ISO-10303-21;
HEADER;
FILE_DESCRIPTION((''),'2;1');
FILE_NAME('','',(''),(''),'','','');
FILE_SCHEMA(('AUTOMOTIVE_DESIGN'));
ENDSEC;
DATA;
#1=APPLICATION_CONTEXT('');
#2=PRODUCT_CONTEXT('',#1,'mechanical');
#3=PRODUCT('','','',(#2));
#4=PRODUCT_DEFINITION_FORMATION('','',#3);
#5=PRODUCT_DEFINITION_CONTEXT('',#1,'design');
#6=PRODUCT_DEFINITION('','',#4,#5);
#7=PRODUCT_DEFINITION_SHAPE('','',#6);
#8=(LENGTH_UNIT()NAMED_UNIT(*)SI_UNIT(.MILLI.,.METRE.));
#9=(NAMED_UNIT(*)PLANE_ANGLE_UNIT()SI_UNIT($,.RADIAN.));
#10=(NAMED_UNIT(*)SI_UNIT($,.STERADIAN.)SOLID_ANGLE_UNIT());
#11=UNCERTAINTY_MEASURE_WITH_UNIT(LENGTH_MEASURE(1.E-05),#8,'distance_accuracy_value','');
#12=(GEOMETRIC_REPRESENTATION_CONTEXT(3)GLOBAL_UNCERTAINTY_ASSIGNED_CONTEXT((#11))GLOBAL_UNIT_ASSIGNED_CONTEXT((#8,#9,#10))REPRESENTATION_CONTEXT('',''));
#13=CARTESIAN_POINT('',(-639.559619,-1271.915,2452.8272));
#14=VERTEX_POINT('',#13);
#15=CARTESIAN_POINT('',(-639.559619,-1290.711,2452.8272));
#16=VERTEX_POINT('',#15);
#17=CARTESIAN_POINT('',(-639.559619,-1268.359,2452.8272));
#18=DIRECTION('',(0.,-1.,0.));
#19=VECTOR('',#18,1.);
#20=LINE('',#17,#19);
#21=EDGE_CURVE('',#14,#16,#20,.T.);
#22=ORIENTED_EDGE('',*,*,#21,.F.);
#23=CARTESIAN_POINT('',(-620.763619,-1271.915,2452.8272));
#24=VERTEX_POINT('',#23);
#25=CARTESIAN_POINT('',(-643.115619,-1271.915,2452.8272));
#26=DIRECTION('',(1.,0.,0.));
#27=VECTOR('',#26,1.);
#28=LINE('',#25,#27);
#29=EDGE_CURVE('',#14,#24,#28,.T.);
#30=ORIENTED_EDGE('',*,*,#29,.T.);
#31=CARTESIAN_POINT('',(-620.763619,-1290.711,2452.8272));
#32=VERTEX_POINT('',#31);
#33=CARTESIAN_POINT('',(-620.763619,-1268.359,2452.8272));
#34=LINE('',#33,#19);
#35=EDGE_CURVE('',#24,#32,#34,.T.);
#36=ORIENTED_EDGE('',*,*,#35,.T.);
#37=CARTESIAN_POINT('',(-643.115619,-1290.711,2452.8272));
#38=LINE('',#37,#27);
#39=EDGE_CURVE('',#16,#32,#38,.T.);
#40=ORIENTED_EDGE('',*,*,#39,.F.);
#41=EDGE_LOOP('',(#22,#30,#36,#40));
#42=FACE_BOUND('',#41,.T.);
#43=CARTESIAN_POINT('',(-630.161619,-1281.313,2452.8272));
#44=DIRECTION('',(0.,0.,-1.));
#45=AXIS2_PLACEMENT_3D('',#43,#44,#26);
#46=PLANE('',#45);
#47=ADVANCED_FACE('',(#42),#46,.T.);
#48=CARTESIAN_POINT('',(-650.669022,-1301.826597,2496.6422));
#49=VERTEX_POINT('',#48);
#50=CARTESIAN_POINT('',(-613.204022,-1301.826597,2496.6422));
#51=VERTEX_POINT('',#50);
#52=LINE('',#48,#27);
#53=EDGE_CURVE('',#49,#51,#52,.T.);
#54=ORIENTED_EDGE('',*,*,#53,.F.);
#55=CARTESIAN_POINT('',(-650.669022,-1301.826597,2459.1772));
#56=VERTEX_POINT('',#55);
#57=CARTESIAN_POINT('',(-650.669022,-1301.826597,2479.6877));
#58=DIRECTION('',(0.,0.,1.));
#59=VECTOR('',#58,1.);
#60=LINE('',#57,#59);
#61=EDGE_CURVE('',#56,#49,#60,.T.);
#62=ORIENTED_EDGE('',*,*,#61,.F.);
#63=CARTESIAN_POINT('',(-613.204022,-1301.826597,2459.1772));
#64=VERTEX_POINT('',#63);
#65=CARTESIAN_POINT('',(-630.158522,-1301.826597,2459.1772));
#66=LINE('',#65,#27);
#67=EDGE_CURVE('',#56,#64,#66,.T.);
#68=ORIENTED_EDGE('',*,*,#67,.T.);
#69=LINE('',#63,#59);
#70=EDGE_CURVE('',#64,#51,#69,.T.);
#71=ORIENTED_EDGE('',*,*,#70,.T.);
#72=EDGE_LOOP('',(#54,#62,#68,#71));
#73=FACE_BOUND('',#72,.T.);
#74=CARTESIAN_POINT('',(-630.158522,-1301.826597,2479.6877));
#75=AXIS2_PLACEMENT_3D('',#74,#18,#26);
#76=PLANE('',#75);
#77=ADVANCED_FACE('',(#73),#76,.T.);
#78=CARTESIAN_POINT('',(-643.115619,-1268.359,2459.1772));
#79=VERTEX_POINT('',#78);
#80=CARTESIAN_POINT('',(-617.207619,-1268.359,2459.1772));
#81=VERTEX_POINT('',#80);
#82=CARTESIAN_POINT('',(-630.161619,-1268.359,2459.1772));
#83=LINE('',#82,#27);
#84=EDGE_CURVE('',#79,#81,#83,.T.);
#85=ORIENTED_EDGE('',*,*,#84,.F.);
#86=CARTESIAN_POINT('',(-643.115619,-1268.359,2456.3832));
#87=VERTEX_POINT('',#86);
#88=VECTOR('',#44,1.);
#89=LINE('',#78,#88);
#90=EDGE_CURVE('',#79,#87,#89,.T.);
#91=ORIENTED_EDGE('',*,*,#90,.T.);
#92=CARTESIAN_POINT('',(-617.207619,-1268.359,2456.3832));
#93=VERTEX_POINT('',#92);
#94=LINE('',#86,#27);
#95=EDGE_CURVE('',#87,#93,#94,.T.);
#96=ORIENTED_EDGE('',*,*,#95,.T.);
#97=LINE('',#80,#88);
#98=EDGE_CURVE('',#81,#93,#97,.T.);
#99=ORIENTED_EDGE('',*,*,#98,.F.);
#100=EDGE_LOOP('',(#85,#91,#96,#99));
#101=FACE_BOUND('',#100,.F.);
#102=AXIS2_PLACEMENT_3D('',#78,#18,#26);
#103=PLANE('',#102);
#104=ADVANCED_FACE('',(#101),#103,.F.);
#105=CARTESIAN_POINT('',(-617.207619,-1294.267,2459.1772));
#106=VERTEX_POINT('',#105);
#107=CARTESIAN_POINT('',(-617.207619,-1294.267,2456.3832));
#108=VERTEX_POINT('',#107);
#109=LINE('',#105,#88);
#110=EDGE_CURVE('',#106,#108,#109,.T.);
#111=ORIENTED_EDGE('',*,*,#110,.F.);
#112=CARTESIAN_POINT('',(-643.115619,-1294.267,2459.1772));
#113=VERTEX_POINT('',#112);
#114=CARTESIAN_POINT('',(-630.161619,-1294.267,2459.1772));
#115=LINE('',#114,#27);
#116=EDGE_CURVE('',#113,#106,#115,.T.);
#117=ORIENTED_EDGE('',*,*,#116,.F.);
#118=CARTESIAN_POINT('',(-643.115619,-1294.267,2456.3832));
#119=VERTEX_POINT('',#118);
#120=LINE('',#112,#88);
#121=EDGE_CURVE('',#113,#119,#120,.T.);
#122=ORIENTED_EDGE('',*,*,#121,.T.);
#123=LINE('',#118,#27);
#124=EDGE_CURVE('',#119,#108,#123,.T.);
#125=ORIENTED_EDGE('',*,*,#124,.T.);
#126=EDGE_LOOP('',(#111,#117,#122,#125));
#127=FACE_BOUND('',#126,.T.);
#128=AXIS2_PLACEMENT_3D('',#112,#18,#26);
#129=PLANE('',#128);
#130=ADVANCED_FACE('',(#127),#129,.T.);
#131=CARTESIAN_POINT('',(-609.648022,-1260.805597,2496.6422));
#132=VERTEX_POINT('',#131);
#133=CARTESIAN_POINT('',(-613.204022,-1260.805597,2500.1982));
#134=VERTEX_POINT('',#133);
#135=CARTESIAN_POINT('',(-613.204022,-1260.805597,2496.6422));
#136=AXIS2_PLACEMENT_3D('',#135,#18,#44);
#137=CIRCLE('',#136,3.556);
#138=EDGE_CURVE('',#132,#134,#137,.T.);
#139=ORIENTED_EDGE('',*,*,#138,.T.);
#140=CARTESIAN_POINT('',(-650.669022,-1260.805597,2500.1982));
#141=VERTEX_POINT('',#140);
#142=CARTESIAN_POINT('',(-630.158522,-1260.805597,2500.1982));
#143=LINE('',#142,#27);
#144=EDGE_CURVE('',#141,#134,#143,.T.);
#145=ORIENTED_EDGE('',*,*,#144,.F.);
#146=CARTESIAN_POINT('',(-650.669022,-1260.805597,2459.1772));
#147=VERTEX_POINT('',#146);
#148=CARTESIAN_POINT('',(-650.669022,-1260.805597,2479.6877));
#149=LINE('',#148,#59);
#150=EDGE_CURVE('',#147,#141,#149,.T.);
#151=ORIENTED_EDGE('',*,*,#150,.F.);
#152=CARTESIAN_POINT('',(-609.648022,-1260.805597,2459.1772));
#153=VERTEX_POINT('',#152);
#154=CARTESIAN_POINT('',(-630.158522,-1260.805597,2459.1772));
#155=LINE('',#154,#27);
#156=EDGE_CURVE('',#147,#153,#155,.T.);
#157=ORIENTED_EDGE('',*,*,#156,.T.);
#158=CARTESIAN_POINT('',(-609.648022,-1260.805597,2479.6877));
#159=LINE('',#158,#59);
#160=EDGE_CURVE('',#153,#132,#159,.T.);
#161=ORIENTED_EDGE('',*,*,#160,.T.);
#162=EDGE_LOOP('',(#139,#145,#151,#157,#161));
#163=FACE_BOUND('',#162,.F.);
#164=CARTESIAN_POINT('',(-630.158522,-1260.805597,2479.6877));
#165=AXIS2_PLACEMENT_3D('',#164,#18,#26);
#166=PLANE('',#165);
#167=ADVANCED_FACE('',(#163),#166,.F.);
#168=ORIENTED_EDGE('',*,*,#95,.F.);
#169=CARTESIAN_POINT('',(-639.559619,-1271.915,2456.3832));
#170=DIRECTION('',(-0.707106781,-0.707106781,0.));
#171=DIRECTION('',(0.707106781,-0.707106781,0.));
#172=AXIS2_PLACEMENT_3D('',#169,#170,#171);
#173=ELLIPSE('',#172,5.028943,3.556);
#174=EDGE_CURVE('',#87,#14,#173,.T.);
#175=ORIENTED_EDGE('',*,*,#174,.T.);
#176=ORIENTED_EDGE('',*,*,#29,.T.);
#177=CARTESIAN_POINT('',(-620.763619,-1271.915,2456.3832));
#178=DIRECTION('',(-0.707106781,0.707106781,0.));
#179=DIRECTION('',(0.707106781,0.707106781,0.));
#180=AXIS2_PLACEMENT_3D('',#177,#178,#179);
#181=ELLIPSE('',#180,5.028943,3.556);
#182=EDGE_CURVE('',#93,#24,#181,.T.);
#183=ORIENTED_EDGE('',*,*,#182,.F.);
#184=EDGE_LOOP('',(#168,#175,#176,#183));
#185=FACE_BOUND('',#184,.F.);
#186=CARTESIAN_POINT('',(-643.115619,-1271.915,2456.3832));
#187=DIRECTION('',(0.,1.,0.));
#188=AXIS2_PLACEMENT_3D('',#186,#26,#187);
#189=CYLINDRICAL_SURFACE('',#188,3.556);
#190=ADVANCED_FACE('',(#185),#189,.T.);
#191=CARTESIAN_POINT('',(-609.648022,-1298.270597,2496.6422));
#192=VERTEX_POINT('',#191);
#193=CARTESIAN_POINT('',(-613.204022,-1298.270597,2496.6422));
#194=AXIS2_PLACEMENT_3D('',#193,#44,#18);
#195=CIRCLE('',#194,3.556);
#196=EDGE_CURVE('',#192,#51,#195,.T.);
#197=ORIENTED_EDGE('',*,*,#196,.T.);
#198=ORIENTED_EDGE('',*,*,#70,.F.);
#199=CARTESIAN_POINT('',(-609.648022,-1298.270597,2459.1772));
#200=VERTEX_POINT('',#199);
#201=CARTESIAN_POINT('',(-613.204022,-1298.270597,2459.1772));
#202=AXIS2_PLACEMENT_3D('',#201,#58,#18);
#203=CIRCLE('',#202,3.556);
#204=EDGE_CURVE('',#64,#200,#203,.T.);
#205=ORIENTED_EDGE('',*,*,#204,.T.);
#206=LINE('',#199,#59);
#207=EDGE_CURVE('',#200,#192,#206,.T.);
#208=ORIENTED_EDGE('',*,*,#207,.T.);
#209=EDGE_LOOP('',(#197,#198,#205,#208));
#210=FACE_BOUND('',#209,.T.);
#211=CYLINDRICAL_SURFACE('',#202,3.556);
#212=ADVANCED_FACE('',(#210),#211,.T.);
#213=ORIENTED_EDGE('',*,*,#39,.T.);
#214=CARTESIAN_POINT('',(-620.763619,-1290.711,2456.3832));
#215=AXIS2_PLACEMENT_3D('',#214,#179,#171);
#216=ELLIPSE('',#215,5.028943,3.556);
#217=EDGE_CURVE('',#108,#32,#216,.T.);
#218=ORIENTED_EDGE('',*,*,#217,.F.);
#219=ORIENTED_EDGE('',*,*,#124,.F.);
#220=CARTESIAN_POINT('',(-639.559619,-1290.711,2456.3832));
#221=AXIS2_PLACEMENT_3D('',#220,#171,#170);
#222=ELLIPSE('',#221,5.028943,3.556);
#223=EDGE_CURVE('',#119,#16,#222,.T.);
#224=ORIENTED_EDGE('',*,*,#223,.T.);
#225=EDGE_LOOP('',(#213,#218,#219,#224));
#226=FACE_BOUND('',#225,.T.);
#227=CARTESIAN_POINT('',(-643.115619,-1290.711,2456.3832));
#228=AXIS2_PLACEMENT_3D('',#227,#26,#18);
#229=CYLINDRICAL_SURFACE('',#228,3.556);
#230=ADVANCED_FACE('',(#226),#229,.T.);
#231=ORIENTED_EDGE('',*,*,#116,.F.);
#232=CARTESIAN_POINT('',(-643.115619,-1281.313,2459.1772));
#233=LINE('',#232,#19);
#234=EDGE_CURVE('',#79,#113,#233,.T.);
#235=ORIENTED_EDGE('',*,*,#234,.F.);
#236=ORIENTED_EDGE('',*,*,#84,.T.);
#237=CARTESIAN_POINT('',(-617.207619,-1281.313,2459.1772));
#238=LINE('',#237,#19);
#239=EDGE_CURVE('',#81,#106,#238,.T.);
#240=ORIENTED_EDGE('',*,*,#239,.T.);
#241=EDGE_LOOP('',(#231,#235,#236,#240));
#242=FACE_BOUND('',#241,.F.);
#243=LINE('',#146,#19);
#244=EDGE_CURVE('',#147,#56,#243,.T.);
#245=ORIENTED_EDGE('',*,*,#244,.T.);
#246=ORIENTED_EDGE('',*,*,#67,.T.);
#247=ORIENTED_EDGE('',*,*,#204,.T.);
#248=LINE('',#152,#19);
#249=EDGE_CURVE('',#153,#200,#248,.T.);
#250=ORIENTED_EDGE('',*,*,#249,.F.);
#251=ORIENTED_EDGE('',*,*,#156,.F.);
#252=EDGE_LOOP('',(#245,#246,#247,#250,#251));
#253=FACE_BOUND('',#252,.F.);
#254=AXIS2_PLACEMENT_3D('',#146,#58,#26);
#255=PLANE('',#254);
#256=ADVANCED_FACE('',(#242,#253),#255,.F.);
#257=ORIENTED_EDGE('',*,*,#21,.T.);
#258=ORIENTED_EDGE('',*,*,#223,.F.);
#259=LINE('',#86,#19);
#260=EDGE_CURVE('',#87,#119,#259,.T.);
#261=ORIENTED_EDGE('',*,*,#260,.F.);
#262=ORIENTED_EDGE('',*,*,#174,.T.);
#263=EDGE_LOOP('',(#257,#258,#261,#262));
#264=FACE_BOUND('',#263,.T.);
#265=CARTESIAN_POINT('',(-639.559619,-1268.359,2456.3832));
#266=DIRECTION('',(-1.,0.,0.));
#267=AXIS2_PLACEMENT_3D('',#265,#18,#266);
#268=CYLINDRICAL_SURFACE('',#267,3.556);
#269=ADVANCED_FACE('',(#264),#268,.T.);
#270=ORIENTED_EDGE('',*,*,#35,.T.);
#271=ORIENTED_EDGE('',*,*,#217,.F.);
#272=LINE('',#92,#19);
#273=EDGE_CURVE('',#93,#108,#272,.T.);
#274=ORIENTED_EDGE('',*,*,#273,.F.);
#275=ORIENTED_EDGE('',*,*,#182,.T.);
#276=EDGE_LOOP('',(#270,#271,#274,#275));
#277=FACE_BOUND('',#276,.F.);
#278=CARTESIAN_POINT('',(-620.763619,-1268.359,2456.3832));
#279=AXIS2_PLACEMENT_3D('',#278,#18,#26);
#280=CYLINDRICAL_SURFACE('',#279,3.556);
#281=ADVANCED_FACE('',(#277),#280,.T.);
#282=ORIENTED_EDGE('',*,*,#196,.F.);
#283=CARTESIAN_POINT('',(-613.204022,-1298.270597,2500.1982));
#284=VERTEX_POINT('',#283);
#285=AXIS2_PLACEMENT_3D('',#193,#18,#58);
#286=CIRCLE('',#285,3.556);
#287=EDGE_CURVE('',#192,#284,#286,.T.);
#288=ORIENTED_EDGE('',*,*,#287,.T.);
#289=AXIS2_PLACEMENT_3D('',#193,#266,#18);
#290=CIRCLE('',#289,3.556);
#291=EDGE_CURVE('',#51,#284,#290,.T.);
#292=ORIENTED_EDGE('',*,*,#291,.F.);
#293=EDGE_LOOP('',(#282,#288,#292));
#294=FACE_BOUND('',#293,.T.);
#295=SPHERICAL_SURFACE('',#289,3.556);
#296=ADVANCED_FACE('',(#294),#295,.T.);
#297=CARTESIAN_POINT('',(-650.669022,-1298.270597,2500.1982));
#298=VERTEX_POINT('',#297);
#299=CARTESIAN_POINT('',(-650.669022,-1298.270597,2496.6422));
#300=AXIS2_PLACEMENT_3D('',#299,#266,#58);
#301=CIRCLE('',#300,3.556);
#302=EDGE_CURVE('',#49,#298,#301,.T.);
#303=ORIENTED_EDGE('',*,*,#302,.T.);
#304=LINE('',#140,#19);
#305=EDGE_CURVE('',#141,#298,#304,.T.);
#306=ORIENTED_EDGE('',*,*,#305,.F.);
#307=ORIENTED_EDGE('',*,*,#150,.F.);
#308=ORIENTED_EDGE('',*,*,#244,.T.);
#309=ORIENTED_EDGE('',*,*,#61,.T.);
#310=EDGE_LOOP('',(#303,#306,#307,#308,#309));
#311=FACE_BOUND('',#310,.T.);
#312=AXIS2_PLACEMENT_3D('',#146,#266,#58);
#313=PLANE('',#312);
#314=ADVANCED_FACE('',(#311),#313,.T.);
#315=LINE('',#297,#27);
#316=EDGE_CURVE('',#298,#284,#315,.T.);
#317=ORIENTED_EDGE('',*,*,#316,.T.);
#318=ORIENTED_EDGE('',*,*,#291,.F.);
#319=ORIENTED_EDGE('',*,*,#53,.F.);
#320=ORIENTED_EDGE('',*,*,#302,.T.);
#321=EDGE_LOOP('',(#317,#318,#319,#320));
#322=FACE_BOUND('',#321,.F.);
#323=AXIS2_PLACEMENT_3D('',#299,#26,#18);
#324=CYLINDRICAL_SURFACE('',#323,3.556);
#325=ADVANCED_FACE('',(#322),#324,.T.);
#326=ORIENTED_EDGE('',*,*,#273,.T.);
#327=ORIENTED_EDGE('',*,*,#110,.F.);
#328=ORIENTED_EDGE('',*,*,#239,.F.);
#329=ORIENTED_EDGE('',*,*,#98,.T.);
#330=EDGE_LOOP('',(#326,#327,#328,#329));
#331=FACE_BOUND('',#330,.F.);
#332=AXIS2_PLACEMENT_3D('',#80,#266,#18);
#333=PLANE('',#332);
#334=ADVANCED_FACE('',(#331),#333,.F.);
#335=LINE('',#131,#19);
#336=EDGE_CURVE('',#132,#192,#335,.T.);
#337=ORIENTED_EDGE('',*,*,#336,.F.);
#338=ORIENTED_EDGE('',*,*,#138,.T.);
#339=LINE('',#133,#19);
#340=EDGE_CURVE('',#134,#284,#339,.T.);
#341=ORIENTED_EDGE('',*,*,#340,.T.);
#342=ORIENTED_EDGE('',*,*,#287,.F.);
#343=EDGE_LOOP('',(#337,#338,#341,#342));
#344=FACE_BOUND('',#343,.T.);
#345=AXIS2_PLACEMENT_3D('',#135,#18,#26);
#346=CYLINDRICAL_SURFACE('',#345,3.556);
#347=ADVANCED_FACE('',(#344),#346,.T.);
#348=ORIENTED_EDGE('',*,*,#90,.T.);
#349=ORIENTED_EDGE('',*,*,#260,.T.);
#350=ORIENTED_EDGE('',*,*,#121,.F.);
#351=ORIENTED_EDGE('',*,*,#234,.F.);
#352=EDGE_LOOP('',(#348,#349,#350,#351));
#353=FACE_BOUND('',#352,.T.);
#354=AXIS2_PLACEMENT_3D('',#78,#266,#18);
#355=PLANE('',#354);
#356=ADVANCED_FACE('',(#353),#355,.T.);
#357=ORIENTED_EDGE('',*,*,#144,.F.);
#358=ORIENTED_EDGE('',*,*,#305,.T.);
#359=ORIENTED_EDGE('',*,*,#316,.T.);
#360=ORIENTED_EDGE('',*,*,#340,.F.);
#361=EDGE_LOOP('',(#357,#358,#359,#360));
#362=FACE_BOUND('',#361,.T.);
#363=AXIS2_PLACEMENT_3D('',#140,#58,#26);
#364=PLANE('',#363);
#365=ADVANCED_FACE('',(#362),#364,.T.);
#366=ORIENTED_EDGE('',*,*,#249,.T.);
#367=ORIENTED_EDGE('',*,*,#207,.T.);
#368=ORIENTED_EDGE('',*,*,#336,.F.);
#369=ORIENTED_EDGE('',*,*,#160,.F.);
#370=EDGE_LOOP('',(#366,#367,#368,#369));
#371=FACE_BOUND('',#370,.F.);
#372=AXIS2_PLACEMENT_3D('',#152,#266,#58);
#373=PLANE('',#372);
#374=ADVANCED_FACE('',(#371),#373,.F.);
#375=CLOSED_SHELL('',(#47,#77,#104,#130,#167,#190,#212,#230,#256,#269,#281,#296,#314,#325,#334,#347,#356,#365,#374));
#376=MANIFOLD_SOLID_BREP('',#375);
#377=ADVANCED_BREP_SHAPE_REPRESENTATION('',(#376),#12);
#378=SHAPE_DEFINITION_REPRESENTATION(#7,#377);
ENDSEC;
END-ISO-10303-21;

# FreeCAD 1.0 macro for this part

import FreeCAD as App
import Part
import Sketcher

V = App.Vector
Q = App.Units.Quantity


def edges_at(feature, points):
    """Names of the edges that pass closest to the given points."""
    edges = feature.Shape.Edges
    near = lambda p: min(range(len(edges)), key=lambda i: edges[i].distToShape(Part.Vertex(*p))[0])
    return sorted({f"Edge{near(p) + 1}" for p in points})


def add_polygon(sketch, points):
    """Adds a closed chain of lines whose ends are joined by coincident constraints."""
    first, n = sketch.GeometryCount, len(points)
    for a, b in zip(points, points[1:] + points[:1]):
        sketch.addGeometry(Part.LineSegment(App.Vector(*a, 0), App.Vector(*b, 0)), False)
    for i in range(n):
        sketch.addConstraint(Sketcher.Constraint("Coincident", first + i, 2, first + (i + 1) % n, 1))

doc = App.newDocument("Part")
params = doc.addObject("Spreadsheet::Sheet", "Params")
for row, (alias, value) in enumerate([
    ("sketch1_width", "1.615 in"),
    ("pad1_length", "1.615 in"),
    ("sketch2_width", "1.02 in"),
    ("pad2_length", "0.25 in"),
    ("fillet_radius", "0.14 in"),
    ("fillet2_radius", "0.14 in"),
], start=1):
    params.set(f"A{row}", alias)
    params.set(f"B{row}", "=" + value)
    params.setAlias(f"B{row}", alias)

body = doc.addObject("PartDesign::Body", "Body")

# Sketch on XZ plane
sketch1 = body.newObject("Sketcher::SketchObject", "Sketch")
sketch1.AttachmentSupport = (doc.getObject("XZ_Plane"), [""])
sketch1.MapMode = "FlatFace"
add_polygon(sketch1, [(0, 41.021), (0, 0), (41.021, 0), (41.021, 41.021)])  # lines 0-3
sketch1.addConstraint([
    Sketcher.Constraint("Vertical", 0),
    Sketcher.Constraint("Horizontal", 1),
    Sketcher.Constraint("Vertical", 2),
    Sketcher.Constraint("Horizontal", 3),
    Sketcher.Constraint("Coincident", 0, 2, -1, 1),
    Sketcher.Constraint("Equal", 3, 0),
    Sketcher.Constraint("DistanceX", 1, 1, 1, 2, Q("1.615 in")),
])
sketch1.setExpression("Constraints[10]", "Params.sketch1_width")
pad1 = body.newObject("PartDesign::Pad", "Pad")
pad1.Profile = sketch1
pad1.setExpression("Length", "Params.pad1_length")

# Sketch on XY plane
sketch2 = body.newObject("Sketcher::SketchObject", "Sketch001")
sketch2.AttachmentSupport = (doc.getObject("XY_Plane"), [""])
sketch2.MapMode = "FlatFace"
add_polygon(sketch2, [(7.553403, -33.461403), (7.553403, -7.553403), (33.461403, -7.553403), (33.461403, -33.461403)])  # lines 0-3
sketch2.addConstraint([
    Sketcher.Constraint("Vertical", 0),
    Sketcher.Constraint("Horizontal", 1),
    Sketcher.Constraint("Vertical", 2),
    Sketcher.Constraint("Horizontal", 3),
    Sketcher.Constraint("Equal", 3, 0),
    Sketcher.Constraint("DistanceX", 1, 1, 1, 2, Q("1.02 in")),
    Sketcher.Constraint("DistanceX", -1, 1, 0, 2, 7.553403),
    Sketcher.Constraint("DistanceY", 0, 2, -1, 1, 7.553403),
])
sketch2.setExpression("Constraints[9]", "Params.sketch2_width")
pad2 = body.newObject("PartDesign::Pad", "Pad001")
pad2.Profile = sketch2
pad2.setExpression("Length", "Params.pad2_length")
pad2.Reversed = True
doc.recompute()

fillet = body.newObject("PartDesign::Fillet", "Fillet")
fillet.Base = (pad2, edges_at(pad2, [
    (7.553, -20.507, -6.35),
    (20.507, -33.461, -6.35),
    (20.507, -7.553, -6.35),
    (33.461, -20.507, -6.35),
]))
fillet.setExpression("Radius", "Params.fillet_radius")
doc.recompute()

fillet2 = body.newObject("PartDesign::Fillet", "Fillet001")
fillet2.Base = (fillet, edges_at(fillet, [(20.511, -41.021, 41.021), (41.021, -41.021, 20.511), (41.021, -20.511, 41.021)]))
fillet2.setExpression("Radius", "Params.fillet2_radius")
body2 = doc.addObject("PartDesign::Body", "Body001")
doc.recompute()

body.Placement = App.Placement(V(-650.669022, -1260.805597, 2459.1772), App.Rotation(V(0, 0, 1), 0))
boolean = body2.newObject("PartDesign::Boolean", "Boolean")
boolean.Type = "Fuse"
boolean.addObjects([body])

doc.recompute()
